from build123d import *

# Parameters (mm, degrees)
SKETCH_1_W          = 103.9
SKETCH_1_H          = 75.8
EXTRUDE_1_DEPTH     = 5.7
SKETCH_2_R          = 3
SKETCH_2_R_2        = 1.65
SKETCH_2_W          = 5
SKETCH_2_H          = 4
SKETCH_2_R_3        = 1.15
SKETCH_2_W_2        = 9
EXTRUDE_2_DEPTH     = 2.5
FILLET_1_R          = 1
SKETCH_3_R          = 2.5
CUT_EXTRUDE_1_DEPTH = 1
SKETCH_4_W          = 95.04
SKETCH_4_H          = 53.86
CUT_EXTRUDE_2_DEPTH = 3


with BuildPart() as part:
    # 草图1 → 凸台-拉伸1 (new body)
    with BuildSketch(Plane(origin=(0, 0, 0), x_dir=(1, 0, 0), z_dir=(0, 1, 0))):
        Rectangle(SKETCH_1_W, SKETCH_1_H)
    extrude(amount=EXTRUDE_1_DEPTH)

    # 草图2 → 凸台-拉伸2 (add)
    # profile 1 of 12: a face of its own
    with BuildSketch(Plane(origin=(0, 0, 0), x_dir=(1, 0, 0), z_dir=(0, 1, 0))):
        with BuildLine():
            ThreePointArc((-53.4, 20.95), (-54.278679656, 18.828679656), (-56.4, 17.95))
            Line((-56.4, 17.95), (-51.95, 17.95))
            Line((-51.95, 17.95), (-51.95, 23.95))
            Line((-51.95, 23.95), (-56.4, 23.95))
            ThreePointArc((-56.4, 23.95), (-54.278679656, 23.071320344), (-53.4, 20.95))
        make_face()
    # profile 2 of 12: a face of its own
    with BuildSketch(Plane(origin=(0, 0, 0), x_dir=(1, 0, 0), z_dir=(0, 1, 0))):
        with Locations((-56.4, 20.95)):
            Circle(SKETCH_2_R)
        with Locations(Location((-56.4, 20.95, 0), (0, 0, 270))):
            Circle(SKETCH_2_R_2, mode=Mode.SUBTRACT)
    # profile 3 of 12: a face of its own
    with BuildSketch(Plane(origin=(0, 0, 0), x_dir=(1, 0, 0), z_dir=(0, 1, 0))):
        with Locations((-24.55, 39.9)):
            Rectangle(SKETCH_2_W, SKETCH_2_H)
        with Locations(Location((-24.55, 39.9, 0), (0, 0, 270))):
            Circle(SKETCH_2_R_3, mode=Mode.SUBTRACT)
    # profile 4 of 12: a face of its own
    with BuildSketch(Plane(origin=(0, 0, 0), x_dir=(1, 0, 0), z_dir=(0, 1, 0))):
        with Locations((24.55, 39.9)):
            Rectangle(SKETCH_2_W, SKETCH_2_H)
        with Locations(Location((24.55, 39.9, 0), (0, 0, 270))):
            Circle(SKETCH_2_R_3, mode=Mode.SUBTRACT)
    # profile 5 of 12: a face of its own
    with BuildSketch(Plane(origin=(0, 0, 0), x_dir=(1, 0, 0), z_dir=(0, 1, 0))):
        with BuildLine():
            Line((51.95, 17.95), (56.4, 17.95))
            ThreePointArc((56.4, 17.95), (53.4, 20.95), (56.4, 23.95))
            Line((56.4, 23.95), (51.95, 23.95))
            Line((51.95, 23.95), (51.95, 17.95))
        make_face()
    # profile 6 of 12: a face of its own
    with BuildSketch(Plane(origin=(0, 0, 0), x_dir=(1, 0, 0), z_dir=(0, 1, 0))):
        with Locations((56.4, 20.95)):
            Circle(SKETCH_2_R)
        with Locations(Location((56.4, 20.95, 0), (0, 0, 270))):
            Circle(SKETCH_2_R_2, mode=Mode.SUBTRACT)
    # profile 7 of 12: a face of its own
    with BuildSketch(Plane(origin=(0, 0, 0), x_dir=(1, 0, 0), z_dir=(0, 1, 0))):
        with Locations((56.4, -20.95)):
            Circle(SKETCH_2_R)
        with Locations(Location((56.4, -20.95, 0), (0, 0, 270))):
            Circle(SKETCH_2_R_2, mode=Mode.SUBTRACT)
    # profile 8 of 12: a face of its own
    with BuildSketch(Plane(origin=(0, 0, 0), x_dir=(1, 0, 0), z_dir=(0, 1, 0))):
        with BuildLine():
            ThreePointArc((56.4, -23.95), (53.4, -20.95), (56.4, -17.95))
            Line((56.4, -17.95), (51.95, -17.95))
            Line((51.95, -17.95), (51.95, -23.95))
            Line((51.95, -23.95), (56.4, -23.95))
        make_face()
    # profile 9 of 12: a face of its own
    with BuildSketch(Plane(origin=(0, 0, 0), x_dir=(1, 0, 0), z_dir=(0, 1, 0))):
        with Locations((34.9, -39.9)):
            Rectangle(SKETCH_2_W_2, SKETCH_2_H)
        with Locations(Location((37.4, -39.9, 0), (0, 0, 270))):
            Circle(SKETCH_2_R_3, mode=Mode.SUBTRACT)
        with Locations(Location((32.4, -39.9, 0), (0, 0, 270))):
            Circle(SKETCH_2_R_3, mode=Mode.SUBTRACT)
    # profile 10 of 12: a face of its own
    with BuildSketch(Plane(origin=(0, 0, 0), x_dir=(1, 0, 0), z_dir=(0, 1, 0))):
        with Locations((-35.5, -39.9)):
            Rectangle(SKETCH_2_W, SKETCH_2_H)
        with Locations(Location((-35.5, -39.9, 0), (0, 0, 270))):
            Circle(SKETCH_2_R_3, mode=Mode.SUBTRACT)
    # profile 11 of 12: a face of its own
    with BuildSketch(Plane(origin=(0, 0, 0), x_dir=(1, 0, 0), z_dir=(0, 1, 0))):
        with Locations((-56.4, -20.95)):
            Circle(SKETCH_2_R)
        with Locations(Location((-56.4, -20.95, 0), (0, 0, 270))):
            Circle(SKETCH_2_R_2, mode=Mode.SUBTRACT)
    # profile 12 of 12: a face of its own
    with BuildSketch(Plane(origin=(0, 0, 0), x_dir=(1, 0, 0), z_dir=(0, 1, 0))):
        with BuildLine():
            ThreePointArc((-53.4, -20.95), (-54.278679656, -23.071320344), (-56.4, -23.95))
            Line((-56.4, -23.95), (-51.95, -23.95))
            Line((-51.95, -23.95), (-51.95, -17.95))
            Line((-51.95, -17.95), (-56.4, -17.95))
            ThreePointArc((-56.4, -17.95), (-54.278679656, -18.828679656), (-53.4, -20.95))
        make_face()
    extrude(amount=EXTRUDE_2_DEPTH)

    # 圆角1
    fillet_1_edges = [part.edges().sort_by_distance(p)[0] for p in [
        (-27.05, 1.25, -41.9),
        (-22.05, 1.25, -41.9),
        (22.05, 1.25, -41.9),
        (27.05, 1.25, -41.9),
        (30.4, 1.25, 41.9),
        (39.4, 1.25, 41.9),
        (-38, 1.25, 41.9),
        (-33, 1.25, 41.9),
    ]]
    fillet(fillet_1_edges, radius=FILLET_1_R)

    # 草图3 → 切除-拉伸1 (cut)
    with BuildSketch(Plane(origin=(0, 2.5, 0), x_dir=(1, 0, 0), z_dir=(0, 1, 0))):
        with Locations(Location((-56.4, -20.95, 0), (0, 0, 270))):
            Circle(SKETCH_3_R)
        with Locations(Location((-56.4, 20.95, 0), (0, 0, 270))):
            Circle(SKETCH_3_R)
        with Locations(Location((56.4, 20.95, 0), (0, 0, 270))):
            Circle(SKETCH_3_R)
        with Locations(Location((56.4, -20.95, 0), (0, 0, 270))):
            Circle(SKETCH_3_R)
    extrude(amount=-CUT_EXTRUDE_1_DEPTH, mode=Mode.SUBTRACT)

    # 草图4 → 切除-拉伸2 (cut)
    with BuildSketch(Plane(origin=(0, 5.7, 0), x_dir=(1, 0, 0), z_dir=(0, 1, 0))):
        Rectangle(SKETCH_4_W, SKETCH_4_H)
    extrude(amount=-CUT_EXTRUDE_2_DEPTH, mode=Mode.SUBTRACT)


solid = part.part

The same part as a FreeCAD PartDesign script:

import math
import FreeCAD as App
import Part
import Sketcher
Q = App.Units.Quantity


def edges_at(feature, points):
    """Names of the edges that pass closest to the given points."""
    edges = feature.Shape.Edges
    near = lambda p: min(range(len(edges)), key=lambda i: edges[i].distToShape(Part.Vertex(*p))[0])
    return sorted({f"Edge{near(p) + 1}" for p in points})

doc = App.newDocument("Part")
body = doc.addObject("PartDesign::Body", "Body")

# Sketch on XZ plane
sketch1 = doc.addObject("Sketcher::SketchObject", "Sketch")
body.addObject(sketch1)
sketch1.AttachmentSupport = (doc.XZ_Plane, [""])
sketch1.MapMode = "FlatFace"
sketch1.addGeometry([
    Part.LineSegment(App.Vector(-51.95, -37.9, 0), App.Vector(-51.95, 37.9, 0)),
    Part.LineSegment(App.Vector(-51.95, 37.9, 0), App.Vector(51.95, 37.9, 0)),
    Part.LineSegment(App.Vector(51.95, 37.9, 0), App.Vector(51.95, -37.9, 0)),
    Part.LineSegment(App.Vector(51.95, -37.9, 0), App.Vector(-51.95, -37.9, 0)),
], False)
sketch1.addConstraint([
    Sketcher.Constraint("Coincident", 0, 2, 1, 1),
    Sketcher.Constraint("Coincident", 1, 2, 2, 1),
    Sketcher.Constraint("Coincident", 2, 2, 3, 1),
    Sketcher.Constraint("Coincident", 3, 2, 0, 1),
    Sketcher.Constraint("Vertical", 0),
    Sketcher.Constraint("Horizontal", 1),
    Sketcher.Constraint("Vertical", 2),
    Sketcher.Constraint("Horizontal", 3),
    Sketcher.Constraint("Symmetric", 0, 2, 2, 2, -1, 1),
    Sketcher.Constraint("DistanceX", 1, 1, 1, 2, Q("103.9 mm")),
    Sketcher.Constraint("DistanceY", 0, 1, 0, 2, Q("75.8 mm")),
])
pad1 = doc.addObject("PartDesign::Pad", "Pad")
body.addObject(pad1)
pad1.Profile = sketch1
pad1.Length = 5.7
pad1.Reversed = True

# Sketch on XZ plane
sketch2 = doc.addObject("Sketcher::SketchObject", "Sketch001")
body.addObject(sketch2)
sketch2.AttachmentSupport = (doc.XZ_Plane, [""])
sketch2.MapMode = "FlatFace"
sketch2.addGeometry([
    Part.LineSegment(App.Vector(-56.4, -17.95, 0), App.Vector(-51.95, -17.95, 0)),  # 0
    Part.LineSegment(App.Vector(-51.95, -17.95, 0), App.Vector(-51.95, -23.95, 0)),  # 1
    Part.LineSegment(App.Vector(-51.95, -23.95, 0), App.Vector(-56.4, -23.95, 0)),  # 2
    Part.ArcOfCircle(Part.Circle(App.Vector(-56.4, -20.95, 0), App.Vector(0, 0, 1), 3), math.radians(90), math.radians(270)),  # 3
    Part.Circle(App.Vector(-56.4, -20.95, 0), App.Vector(0, 0, 1), 1.65),  # 4
    Part.LineSegment(App.Vector(-27.05, -41.9, 0), App.Vector(-27.05, -37.9, 0)),  # 5
    Part.LineSegment(App.Vector(-27.05, -37.9, 0), App.Vector(-22.05, -37.9, 0)),  # 6
    Part.LineSegment(App.Vector(-22.05, -37.9, 0), App.Vector(-22.05, -41.9, 0)),  # 7
    Part.LineSegment(App.Vector(-22.05, -41.9, 0), App.Vector(-27.05, -41.9, 0)),  # 8
    Part.Circle(App.Vector(-24.55, -39.9, 0), App.Vector(0, 0, 1), 1.15),  # 9
    Part.LineSegment(App.Vector(22.05, -41.9, 0), App.Vector(22.05, -37.9, 0)),  # 10
    Part.LineSegment(App.Vector(22.05, -37.9, 0), App.Vector(27.05, -37.9, 0)),  # 11
    Part.LineSegment(App.Vector(27.05, -37.9, 0), App.Vector(27.05, -41.9, 0)),  # 12
    Part.LineSegment(App.Vector(27.05, -41.9, 0), App.Vector(22.05, -41.9, 0)),  # 13
    Part.Circle(App.Vector(24.55, -39.9, 0), App.Vector(0, 0, 1), 1.15),  # 14
    Part.LineSegment(App.Vector(51.95, -17.95, 0), App.Vector(56.4, -17.95, 0)),  # 15
    Part.ArcOfCircle(Part.Circle(App.Vector(56.4, -20.95, 0), App.Vector(0, 0, 1), 3), math.radians(-90), math.radians(90)),  # 16
    Part.LineSegment(App.Vector(56.4, -23.95, 0), App.Vector(51.95, -23.95, 0)),  # 17
    Part.LineSegment(App.Vector(51.95, -23.95, 0), App.Vector(51.95, -17.95, 0)),  # 18
    Part.Circle(App.Vector(56.4, -20.95, 0), App.Vector(0, 0, 1), 1.65),  # 19
    Part.LineSegment(App.Vector(56.4, 17.95, 0), App.Vector(51.95, 17.95, 0)),  # 20
    Part.LineSegment(App.Vector(51.95, 17.95, 0), App.Vector(51.95, 23.95, 0)),  # 21
    Part.LineSegment(App.Vector(51.95, 23.95, 0), App.Vector(56.4, 23.95, 0)),  # 22
    Part.ArcOfCircle(Part.Circle(App.Vector(56.4, 20.95, 0), App.Vector(0, 0, 1), 3), math.radians(-90), math.radians(90)),  # 23
    Part.Circle(App.Vector(56.4, 20.95, 0), App.Vector(0, 0, 1), 1.65),  # 24
    Part.LineSegment(App.Vector(30.4, 37.9, 0), App.Vector(30.4, 41.9, 0)),  # 25
    Part.LineSegment(App.Vector(30.4, 41.9, 0), App.Vector(39.4, 41.9, 0)),  # 26
    Part.LineSegment(App.Vector(39.4, 41.9, 0), App.Vector(39.4, 37.9, 0)),  # 27
    Part.LineSegment(App.Vector(39.4, 37.9, 0), App.Vector(30.4, 37.9, 0)),  # 28
    Part.Circle(App.Vector(32.4, 39.9, 0), App.Vector(0, 0, 1), 1.15),  # 29
    Part.Circle(App.Vector(37.4, 39.9, 0), App.Vector(0, 0, 1), 1.15),  # 30
    Part.LineSegment(App.Vector(-38, 37.9, 0), App.Vector(-38, 41.9, 0)),  # 31
    Part.LineSegment(App.Vector(-38, 41.9, 0), App.Vector(-33, 41.9, 0)),  # 32
    Part.LineSegment(App.Vector(-33, 41.9, 0), App.Vector(-33, 37.9, 0)),  # 33
    Part.LineSegment(App.Vector(-33, 37.9, 0), App.Vector(-38, 37.9, 0)),  # 34
    Part.Circle(App.Vector(-35.5, 39.9, 0), App.Vector(0, 0, 1), 1.15),  # 35
    Part.ArcOfCircle(Part.Circle(App.Vector(-56.4, 20.95, 0), App.Vector(0, 0, 1), 3), math.radians(90), math.radians(270)),  # 36
    Part.LineSegment(App.Vector(-56.4, 23.95, 0), App.Vector(-51.95, 23.95, 0)),  # 37
    Part.LineSegment(App.Vector(-51.95, 23.95, 0), App.Vector(-51.95, 17.95, 0)),  # 38
    Part.LineSegment(App.Vector(-51.95, 17.95, 0), App.Vector(-56.4, 17.95, 0)),  # 39
    Part.Circle(App.Vector(-56.4, 20.95, 0), App.Vector(0, 0, 1), 1.65),  # 40
], False)
sketch2.addConstraint([
    Sketcher.Constraint("Coincident", 0, 2, 1, 1),
    Sketcher.Constraint("Coincident", 1, 2, 2, 1),
    Sketcher.Constraint("Tangent", 2, 2, 3, 2),
    Sketcher.Constraint("Tangent", 3, 1, 0, 1),
    Sketcher.Constraint("Coincident", 5, 2, 6, 1),
    Sketcher.Constraint("Coincident", 6, 2, 7, 1),
    Sketcher.Constraint("Coincident", 7, 2, 8, 1),
    Sketcher.Constraint("Coincident", 8, 2, 5, 1),
    Sketcher.Constraint("Coincident", 10, 2, 11, 1),
    Sketcher.Constraint("Coincident", 11, 2, 12, 1),
    Sketcher.Constraint("Coincident", 12, 2, 13, 1),
    Sketcher.Constraint("Coincident", 13, 2, 10, 1),
    Sketcher.Constraint("Tangent", 15, 2, 16, 2),
    Sketcher.Constraint("Tangent", 16, 1, 17, 1),
    Sketcher.Constraint("Coincident", 17, 2, 18, 1),
    Sketcher.Constraint("Coincident", 18, 2, 15, 1),
    Sketcher.Constraint("Coincident", 20, 2, 21, 1),
    Sketcher.Constraint("Coincident", 21, 2, 22, 1),
    Sketcher.Constraint("Tangent", 22, 2, 23, 2),
    Sketcher.Constraint("Tangent", 23, 1, 20, 1),
    Sketcher.Constraint("Coincident", 25, 2, 26, 1),
    Sketcher.Constraint("Coincident", 26, 2, 27, 1),
    Sketcher.Constraint("Coincident", 27, 2, 28, 1),
    Sketcher.Constraint("Coincident", 28, 2, 25, 1),
    Sketcher.Constraint("Coincident", 31, 2, 32, 1),
    Sketcher.Constraint("Coincident", 32, 2, 33, 1),
    Sketcher.Constraint("Coincident", 33, 2, 34, 1),
    Sketcher.Constraint("Coincident", 34, 2, 31, 1),
    Sketcher.Constraint("Tangent", 36, 1, 37, 1),
    Sketcher.Constraint("Coincident", 37, 2, 38, 1),
    Sketcher.Constraint("Coincident", 38, 2, 39, 1),
    Sketcher.Constraint("Tangent", 39, 2, 36, 2),
    Sketcher.Constraint("Horizontal", 0),
    Sketcher.Constraint("Vertical", 1),
    Sketcher.Constraint("Horizontal", 2),
    Sketcher.Constraint("Vertical", 5),
    Sketcher.Constraint("Horizontal", 6),
    Sketcher.Constraint("Vertical", 7),
    Sketcher.Constraint("Horizontal", 8),
    Sketcher.Constraint("Vertical", 10),
    Sketcher.Constraint("Horizontal", 11),
    Sketcher.Constraint("Vertical", 12),
    Sketcher.Constraint("Horizontal", 13),
    Sketcher.Constraint("Horizontal", 15),
    Sketcher.Constraint("Horizontal", 17),
    Sketcher.Constraint("Vertical", 18),
    Sketcher.Constraint("Horizontal", 20),
    Sketcher.Constraint("Vertical", 21),
    Sketcher.Constraint("Horizontal", 22),
    Sketcher.Constraint("Vertical", 25),
    Sketcher.Constraint("Horizontal", 26),
    Sketcher.Constraint("Vertical", 27),
    Sketcher.Constraint("Horizontal", 28),
    Sketcher.Constraint("Vertical", 31),
    Sketcher.Constraint("Horizontal", 32),
    Sketcher.Constraint("Vertical", 33),
    Sketcher.Constraint("Horizontal", 34),
    Sketcher.Constraint("Horizontal", 37),
    Sketcher.Constraint("Vertical", 38),
    Sketcher.Constraint("Horizontal", 39),
    Sketcher.Constraint("Coincident", 4, 3, 3, 3),
    Sketcher.Constraint("Coincident", 19, 3, 16, 3),
    Sketcher.Constraint("Coincident", 24, 3, 23, 3),
    Sketcher.Constraint("Coincident", 40, 3, 36, 3),
    Sketcher.Constraint("Equal", 9, 14),
    Sketcher.Constraint("Equal", 3, 16),
    Sketcher.Constraint("Equal", 4, 19),
    Sketcher.Constraint("Equal", 16, 23),
    Sketcher.Constraint("Equal", 19, 24),
    Sketcher.Constraint("Equal", 14, 29),
    Sketcher.Constraint("Equal", 29, 30),
    Sketcher.Constraint("Equal", 30, 35),
    Sketcher.Constraint("Equal", 23, 36),
    Sketcher.Constraint("Equal", 24, 40),
    Sketcher.Constraint("Symmetric", 3, 3, 23, 3, -1, 1),
    Sketcher.Constraint("Symmetric", 16, 3, 36, 3, -1, 1),
    Sketcher.Constraint("Symmetric", 9, 3, 14, 3, -2),
    Sketcher.Constraint("Symmetric", 3, 3, 16, 3, -2),
    Sketcher.Constraint("Symmetric", 6, 2, 10, 2, -2),
    Sketcher.Constraint("Symmetric", 8, 2, 12, 2, -2),
    Sketcher.Constraint("Horizontal", 29, 3, 30, 3),
    Sketcher.Constraint("Horizontal", 30, 3, 35, 3),
    Sketcher.Constraint("Horizontal", 26, 2, 31, 2),
    Sketcher.Constraint("Horizontal", 28, 2, 33, 2),
    Sketcher.Constraint("Vertical", 18, 2, 20, 2),
    Sketcher.Constraint("Vertical", 1, 2, 37, 2),
    Sketcher.Constraint("Equal", 2, 15),
    Sketcher.Constraint("Equal", 13, 32),
    Sketcher.Constraint("Equal", 12, 25),
    Sketcher.Constraint("Radius", 3, Q("3 mm")),
    Sketcher.Constraint("Diameter", 4, Q("3.3 mm")),
    Sketcher.Constraint("Diameter", 9, Q("2.3 mm")),
    Sketcher.Constraint("DistanceX", 6, 1, 6, 2, Q("5 mm")),
    Sketcher.Constraint("DistanceX", 26, 1, 26, 2, Q("9 mm")),
    Sketcher.Constraint("DistanceY", 5, 1, 5, 2, Q("4 mm")),
    Sketcher.Constraint("DistanceX", 31, 2, -1, 1, Q("38 mm")),
    Sketcher.Constraint("DistanceX", 29, 3, 23, 3, Q("24 mm")),
    Sketcher.Constraint("DistanceX", 29, 3, 30, 3, Q("5 mm")),
    Sketcher.Constraint("DistanceY", 9, 3, 5, 2, Q("2 mm")),
    Sketcher.Constraint("DistanceX", 25, 2, 29, 3, Q("2 mm")),
    Sketcher.Constraint("DistanceY", 29, 3, 25, 2, Q("2 mm")),
    Sketcher.Constraint("DistanceX", 0, 1, 0, 2, Q("4.45 mm")),
    Sketcher.Constraint("DistanceX", 3, 3, -1, 1, Q("56.4 mm")),
    Sketcher.Constraint("DistanceY", 9, 3, -1, 1, Q("39.9 mm")),
    Sketcher.Constraint("DistanceY", -1, 1, 29, 3, Q("39.9 mm")),
    Sketcher.Constraint("DistanceX", 35, 3, -1, 1, Q("35.5 mm")),
    Sketcher.Constraint("DistanceX", 9, 3, 14, 3, Q("49.1 mm")),
    Sketcher.Constraint("DistanceY", 16, 3, 23, 3, Q("41.9 mm")),
    Sketcher.Constraint("DistanceX", 5, 2, 9, 3, Q("2.5 mm")),
])
pad2 = doc.addObject("PartDesign::Pad", "Pad001")
body.addObject(pad2)
pad2.Profile = sketch2
pad2.Length = 2.5
pad2.Reversed = True
doc.recompute()

fillet = doc.addObject("PartDesign::Fillet", "Fillet")
body.addObject(fillet)
fillet.Base = (pad2, edges_at(pad2, [
    (-27.05, 1.25, -41.9),
    (-22.05, 1.25, -41.9),
    (22.05, 1.25, -41.9),
    (27.05, 1.25, -41.9),
    (30.4, 1.25, 41.9),
    (39.4, 1.25, 41.9),
    (-38, 1.25, 41.9),
    (-33, 1.25, 41.9),
]))
fillet.Radius = 1

# Sketch on XZ plane
sketch3 = doc.addObject("Sketcher::SketchObject", "Sketch002")
body.addObject(sketch3)
sketch3.AttachmentSupport = (doc.XZ_Plane, [""])
sketch3.MapMode = "FlatFace"
sketch3.AttachmentOffset = App.Placement(App.Vector(0, 0, -2.5), App.Rotation())
sketch3.addGeometry([
    Part.Circle(App.Vector(-56.4, 20.95, 0), App.Vector(0, 0, 1), 2.5),
    Part.Circle(App.Vector(-56.4, -20.95, 0), App.Vector(0, 0, 1), 2.5),
    Part.Circle(App.Vector(56.4, -20.95, 0), App.Vector(0, 0, 1), 2.5),
    Part.Circle(App.Vector(56.4, 20.95, 0), App.Vector(0, 0, 1), 2.5),
], False)
sketch3.addConstraint([
    Sketcher.Constraint("Equal", 0, 1),
    Sketcher.Constraint("Equal", 1, 2),
    Sketcher.Constraint("Equal", 2, 3),
    Sketcher.Constraint("Symmetric", 0, 3, 2, 3, -1, 1),
    Sketcher.Constraint("Symmetric", 1, 3, 3, 3, -1, 1),
    Sketcher.Constraint("Symmetric", 1, 3, 2, 3, -2),
    Sketcher.Constraint("Diameter", 0, Q("5 mm")),
    Sketcher.Constraint("DistanceX", 0, 3, -1, 1, Q("56.4 mm")),
    Sketcher.Constraint("DistanceY", 1, 3, 0, 3, Q("41.9 mm")),
])
pocket1 = doc.addObject("PartDesign::Pocket", "Pocket")
body.addObject(pocket1)
pocket1.Profile = sketch3
pocket1.Length = 1
pocket1.Reversed = True

# Sketch on XZ plane
sketch4 = doc.addObject("Sketcher::SketchObject", "Sketch003")
body.addObject(sketch4)
sketch4.AttachmentSupport = (doc.XZ_Plane, [""])
sketch4.MapMode = "FlatFace"
sketch4.AttachmentOffset = App.Placement(App.Vector(0, 0, -5.7), App.Rotation())
sketch4.addGeometry([
    Part.LineSegment(App.Vector(-47.52, -26.93, 0), App.Vector(-47.52, 26.93, 0)),
    Part.LineSegment(App.Vector(-47.52, 26.93, 0), App.Vector(47.52, 26.93, 0)),
    Part.LineSegment(App.Vector(47.52, 26.93, 0), App.Vector(47.52, -26.93, 0)),
    Part.LineSegment(App.Vector(47.52, -26.93, 0), App.Vector(-47.52, -26.93, 0)),
], False)
sketch4.addConstraint([
    Sketcher.Constraint("Coincident", 0, 2, 1, 1),
    Sketcher.Constraint("Coincident", 1, 2, 2, 1),
    Sketcher.Constraint("Coincident", 2, 2, 3, 1),
    Sketcher.Constraint("Coincident", 3, 2, 0, 1),
    Sketcher.Constraint("Vertical", 0),
    Sketcher.Constraint("Horizontal", 1),
    Sketcher.Constraint("Vertical", 2),
    Sketcher.Constraint("Horizontal", 3),
    Sketcher.Constraint("Symmetric", 0, 2, 2, 2, -1, 1),
    Sketcher.Constraint("DistanceX", 1, 1, 1, 2, Q("95.04 mm")),
    Sketcher.Constraint("DistanceY", 0, 1, 0, 2, Q("53.86 mm")),
])
pocket2 = doc.addObject("PartDesign::Pocket", "Pocket001")
body.addObject(pocket2)
pocket2.Profile = sketch4
pocket2.Length = 3
pocket2.Reversed = True

doc.recompute()
